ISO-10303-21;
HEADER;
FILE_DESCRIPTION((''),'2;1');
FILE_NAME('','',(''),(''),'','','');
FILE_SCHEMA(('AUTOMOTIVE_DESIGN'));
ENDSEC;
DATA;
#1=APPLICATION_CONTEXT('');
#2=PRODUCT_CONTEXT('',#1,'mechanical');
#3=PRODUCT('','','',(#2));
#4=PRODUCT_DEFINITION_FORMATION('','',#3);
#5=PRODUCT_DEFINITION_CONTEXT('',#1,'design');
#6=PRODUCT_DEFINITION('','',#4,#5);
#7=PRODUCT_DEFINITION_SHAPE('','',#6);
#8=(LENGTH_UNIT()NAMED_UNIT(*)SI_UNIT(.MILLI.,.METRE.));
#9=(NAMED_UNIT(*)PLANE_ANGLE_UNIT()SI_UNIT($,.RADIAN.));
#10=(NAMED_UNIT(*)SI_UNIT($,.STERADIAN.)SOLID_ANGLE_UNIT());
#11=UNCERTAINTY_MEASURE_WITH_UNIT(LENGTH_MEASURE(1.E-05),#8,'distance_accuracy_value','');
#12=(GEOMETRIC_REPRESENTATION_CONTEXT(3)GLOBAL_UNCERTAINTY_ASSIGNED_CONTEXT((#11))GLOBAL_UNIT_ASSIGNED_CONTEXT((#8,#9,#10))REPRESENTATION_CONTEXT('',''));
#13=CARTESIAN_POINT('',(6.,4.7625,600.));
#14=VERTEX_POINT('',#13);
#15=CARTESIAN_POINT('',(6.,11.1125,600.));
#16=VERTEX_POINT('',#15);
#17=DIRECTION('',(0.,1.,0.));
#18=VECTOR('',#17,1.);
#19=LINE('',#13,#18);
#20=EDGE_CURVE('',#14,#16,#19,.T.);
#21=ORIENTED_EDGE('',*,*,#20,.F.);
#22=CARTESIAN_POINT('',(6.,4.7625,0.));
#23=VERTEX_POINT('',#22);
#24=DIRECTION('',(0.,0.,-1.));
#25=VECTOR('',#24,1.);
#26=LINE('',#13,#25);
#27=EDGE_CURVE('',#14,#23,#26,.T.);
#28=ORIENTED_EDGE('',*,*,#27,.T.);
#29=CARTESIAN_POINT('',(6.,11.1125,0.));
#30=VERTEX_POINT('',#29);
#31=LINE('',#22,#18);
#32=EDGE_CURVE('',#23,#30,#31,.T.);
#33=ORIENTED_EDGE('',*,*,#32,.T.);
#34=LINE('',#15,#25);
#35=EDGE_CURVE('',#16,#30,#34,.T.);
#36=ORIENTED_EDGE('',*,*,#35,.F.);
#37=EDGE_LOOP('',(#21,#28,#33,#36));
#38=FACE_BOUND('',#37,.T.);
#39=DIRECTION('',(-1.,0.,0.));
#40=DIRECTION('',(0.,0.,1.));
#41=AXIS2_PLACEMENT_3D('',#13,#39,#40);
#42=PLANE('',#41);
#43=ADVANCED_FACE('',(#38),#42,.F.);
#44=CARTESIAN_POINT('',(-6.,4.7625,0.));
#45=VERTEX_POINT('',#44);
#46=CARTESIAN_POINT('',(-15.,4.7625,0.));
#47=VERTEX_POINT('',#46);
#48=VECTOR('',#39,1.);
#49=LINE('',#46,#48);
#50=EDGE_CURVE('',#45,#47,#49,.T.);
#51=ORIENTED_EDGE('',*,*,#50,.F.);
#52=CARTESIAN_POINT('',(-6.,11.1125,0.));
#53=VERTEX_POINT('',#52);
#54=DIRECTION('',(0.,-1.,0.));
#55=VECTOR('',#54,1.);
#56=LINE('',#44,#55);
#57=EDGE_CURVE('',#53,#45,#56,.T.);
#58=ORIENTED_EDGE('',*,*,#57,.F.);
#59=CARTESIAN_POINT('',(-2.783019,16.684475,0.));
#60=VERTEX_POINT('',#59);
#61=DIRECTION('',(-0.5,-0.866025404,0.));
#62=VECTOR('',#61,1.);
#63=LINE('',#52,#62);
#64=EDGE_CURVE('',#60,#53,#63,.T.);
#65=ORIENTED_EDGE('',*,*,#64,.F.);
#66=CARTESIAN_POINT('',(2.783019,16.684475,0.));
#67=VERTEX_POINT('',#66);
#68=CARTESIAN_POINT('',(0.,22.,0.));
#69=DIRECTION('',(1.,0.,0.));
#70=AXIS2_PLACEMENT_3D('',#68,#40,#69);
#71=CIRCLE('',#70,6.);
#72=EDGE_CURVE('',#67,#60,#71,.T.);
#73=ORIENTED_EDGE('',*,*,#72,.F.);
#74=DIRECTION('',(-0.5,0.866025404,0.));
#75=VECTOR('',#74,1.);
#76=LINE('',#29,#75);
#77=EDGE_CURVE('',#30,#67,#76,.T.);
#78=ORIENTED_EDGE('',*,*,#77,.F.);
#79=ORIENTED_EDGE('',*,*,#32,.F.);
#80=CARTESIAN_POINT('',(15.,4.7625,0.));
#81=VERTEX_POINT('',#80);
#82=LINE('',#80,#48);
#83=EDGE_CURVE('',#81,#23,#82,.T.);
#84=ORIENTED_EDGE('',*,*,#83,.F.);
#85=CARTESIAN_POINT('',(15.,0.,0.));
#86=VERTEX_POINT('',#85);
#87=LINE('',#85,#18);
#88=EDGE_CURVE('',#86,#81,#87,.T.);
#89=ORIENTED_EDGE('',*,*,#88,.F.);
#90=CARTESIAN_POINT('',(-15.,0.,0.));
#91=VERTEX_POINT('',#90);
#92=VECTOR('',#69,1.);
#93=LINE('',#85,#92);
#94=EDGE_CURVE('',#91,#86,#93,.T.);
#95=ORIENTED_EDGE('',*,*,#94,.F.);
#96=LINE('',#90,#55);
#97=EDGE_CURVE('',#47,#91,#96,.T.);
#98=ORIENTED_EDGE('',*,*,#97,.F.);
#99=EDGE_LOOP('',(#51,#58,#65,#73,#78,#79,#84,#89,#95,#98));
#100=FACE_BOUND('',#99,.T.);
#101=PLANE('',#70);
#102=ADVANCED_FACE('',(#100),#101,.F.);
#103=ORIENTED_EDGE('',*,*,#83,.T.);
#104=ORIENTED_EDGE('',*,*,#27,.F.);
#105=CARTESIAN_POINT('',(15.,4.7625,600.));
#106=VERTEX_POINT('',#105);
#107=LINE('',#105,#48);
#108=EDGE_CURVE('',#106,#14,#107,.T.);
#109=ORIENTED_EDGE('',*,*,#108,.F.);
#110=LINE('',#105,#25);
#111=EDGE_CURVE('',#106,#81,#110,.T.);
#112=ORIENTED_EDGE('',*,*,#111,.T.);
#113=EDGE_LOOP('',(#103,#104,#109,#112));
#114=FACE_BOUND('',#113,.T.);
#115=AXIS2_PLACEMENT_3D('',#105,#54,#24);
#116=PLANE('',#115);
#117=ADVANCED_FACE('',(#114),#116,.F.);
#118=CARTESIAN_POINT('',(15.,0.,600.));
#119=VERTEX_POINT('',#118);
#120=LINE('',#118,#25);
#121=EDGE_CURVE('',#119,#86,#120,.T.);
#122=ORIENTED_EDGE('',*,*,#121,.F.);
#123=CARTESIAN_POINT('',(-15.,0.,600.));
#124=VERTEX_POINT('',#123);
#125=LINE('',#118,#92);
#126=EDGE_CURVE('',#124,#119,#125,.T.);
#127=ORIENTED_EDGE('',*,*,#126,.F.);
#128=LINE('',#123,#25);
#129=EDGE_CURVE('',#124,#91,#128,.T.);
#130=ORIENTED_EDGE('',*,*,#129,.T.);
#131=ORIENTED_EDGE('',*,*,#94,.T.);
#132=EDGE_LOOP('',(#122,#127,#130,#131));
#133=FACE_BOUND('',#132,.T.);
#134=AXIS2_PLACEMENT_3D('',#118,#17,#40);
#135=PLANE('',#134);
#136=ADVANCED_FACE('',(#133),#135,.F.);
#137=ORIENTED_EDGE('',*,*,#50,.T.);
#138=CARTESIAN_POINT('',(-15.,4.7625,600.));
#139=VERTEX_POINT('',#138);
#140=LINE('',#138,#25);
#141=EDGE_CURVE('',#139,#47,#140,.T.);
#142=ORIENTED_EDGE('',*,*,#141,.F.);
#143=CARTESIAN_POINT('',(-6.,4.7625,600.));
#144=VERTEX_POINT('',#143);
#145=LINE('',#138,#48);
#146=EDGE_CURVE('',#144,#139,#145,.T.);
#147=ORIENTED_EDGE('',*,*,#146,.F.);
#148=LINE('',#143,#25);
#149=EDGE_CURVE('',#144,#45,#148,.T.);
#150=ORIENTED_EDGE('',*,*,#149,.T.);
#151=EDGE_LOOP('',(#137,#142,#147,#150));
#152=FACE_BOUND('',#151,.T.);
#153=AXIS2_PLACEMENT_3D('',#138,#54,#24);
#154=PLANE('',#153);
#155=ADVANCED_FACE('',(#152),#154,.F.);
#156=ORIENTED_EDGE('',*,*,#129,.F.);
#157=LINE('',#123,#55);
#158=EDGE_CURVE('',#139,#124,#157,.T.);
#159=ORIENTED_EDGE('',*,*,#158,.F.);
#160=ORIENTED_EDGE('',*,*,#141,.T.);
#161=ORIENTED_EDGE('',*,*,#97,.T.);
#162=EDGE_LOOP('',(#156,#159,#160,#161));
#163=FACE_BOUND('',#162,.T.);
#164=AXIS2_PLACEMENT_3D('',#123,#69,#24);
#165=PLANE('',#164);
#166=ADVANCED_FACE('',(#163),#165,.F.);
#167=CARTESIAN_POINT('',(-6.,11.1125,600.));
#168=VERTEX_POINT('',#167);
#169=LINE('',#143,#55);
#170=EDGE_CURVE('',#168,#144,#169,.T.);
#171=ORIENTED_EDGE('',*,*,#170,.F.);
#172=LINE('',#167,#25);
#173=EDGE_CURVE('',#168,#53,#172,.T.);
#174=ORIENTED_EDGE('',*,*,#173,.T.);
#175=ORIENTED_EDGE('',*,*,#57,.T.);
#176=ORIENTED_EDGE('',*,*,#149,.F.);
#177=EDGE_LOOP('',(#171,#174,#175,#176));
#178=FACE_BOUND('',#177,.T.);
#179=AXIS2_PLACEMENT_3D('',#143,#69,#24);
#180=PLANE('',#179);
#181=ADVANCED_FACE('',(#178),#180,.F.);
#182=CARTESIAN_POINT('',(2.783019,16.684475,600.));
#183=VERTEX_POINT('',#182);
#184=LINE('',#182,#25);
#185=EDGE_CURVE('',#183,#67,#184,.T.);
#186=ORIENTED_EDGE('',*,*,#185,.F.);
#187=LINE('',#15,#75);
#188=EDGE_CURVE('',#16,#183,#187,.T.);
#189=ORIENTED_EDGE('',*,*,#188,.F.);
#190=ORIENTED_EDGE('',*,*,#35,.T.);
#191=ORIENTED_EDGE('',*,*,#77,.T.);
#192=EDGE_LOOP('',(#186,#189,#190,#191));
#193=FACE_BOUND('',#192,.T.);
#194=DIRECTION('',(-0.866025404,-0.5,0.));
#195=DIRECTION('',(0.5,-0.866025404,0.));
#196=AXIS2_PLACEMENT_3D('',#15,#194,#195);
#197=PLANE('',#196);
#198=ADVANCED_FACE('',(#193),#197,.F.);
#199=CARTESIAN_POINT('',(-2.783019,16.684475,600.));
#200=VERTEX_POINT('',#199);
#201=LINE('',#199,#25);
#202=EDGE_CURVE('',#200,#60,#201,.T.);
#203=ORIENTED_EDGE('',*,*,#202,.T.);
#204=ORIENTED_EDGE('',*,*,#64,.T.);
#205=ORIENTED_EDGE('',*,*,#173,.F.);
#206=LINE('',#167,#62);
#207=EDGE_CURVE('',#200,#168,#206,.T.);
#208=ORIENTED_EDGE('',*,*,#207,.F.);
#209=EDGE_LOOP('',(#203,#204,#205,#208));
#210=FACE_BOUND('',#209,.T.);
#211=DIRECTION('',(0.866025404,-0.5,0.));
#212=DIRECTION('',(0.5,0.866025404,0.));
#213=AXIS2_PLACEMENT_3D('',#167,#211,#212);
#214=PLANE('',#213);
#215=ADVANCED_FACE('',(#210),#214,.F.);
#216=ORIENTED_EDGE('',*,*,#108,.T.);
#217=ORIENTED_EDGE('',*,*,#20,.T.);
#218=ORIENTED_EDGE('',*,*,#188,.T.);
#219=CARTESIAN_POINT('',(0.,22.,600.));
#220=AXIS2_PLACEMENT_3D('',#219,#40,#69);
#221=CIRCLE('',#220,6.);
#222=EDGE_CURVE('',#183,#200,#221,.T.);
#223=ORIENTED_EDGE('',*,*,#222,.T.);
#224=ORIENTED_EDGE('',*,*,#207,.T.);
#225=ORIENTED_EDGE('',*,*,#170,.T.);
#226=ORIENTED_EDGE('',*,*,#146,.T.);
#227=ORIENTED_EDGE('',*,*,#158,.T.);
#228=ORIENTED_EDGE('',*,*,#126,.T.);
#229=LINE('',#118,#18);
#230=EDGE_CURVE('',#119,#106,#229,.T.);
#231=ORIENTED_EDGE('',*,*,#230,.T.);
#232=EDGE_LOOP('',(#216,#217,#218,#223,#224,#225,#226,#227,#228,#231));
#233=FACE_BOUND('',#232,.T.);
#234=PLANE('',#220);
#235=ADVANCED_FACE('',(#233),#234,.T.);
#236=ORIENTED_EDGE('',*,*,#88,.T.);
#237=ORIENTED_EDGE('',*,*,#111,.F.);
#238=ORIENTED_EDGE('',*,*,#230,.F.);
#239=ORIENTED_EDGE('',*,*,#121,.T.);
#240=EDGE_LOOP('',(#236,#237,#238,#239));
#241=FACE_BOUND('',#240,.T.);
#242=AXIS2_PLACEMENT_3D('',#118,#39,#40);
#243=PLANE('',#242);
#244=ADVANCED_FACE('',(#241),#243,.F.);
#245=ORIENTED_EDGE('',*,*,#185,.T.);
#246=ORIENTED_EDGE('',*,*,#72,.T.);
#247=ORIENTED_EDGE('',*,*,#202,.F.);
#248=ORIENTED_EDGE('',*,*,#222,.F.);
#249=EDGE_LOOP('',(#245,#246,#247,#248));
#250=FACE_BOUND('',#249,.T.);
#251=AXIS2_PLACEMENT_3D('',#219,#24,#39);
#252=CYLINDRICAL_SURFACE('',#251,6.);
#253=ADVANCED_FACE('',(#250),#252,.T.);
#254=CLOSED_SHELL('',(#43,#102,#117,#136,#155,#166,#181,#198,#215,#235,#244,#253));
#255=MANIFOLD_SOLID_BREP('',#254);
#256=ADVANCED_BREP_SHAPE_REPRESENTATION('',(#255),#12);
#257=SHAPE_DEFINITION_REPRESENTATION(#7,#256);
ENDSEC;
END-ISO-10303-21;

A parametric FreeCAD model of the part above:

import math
import FreeCAD as App
import Part
import Sketcher
from FreeCAD import Vector
Q = App.Units.Quantity

doc = App.newDocument("Part")
body = doc.addObject("PartDesign::Body", "Body")

sketch1 = body.newObject("Sketcher::SketchObject", "Sketch")
sketch1.AttachmentSupport = (doc.getObject("XY_Plane"), [""])
sketch1.MapMode = "FlatFace"
sketch1.addGeometry(Part.LineSegment(Vector(-15, 0, 0), Vector(15, 0, 0)), False)
sketch1.addGeometry(Part.LineSegment(Vector(15, 0, 0), Vector(15, 4.7625, 0)), False)
sketch1.addGeometry(Part.LineSegment(Vector(15, 4.7625, 0), Vector(6, 4.7625, 0)), False)
sketch1.addGeometry(Part.LineSegment(Vector(6, 4.7625, 0), Vector(6, 11.1125, 0)), False)
sketch1.addGeometry(Part.LineSegment(Vector(6, 11.1125, 0), Vector(2.783019, 16.684475, 0)), False)
sketch1.addGeometry(Part.ArcOfCircle(Part.Circle(Vector(0, 22, 0), Vector(0, 0, 1), 6), math.radians(-62.365054), math.radians(242.365054)), False)
sketch1.addGeometry(Part.LineSegment(Vector(-2.783019, 16.684475, 0), Vector(-6, 11.1125, 0)), False)
sketch1.addGeometry(Part.LineSegment(Vector(-6, 11.1125, 0), Vector(-6, 4.7625, 0)), False)
sketch1.addGeometry(Part.LineSegment(Vector(-6, 4.7625, 0), Vector(-15, 4.7625, 0)), False)
sketch1.addGeometry(Part.LineSegment(Vector(-15, 4.7625, 0), Vector(-15, 0, 0)), False)
sketch1.addConstraint(Sketcher.Constraint("Coincident", 0, 2, 1, 1))
sketch1.addConstraint(Sketcher.Constraint("Coincident", 1, 2, 2, 1))
sketch1.addConstraint(Sketcher.Constraint("Coincident", 2, 2, 3, 1))
sketch1.addConstraint(Sketcher.Constraint("Coincident", 3, 2, 4, 1))
sketch1.addConstraint(Sketcher.Constraint("Coincident", 4, 2, 5, 1))
sketch1.addConstraint(Sketcher.Constraint("Coincident", 5, 2, 6, 1))
sketch1.addConstraint(Sketcher.Constraint("Coincident", 6, 2, 7, 1))
sketch1.addConstraint(Sketcher.Constraint("Coincident", 7, 2, 8, 1))
sketch1.addConstraint(Sketcher.Constraint("Coincident", 8, 2, 9, 1))
sketch1.addConstraint(Sketcher.Constraint("Coincident", 9, 2, 0, 1))
sketch1.addConstraint(Sketcher.Constraint("Horizontal", 0))
sketch1.addConstraint(Sketcher.Constraint("Vertical", 1))
sketch1.addConstraint(Sketcher.Constraint("Horizontal", 2))
sketch1.addConstraint(Sketcher.Constraint("Vertical", 3))
sketch1.addConstraint(Sketcher.Constraint("Vertical", 7))
sketch1.addConstraint(Sketcher.Constraint("Horizontal", 8))
sketch1.addConstraint(Sketcher.Constraint("Vertical", 9))
sketch1.addConstraint(Sketcher.Constraint("Symmetric", 0, 2, 9, 2, -1, 1))
sketch1.addConstraint(Sketcher.Constraint("Symmetric", 4, 2, 5, 2, -2))
sketch1.addConstraint(Sketcher.Constraint("Symmetric", 3, 2, 6, 2, -2))
sketch1.addConstraint(Sketcher.Constraint("Horizontal", 2, 2, 7, 2))
sketch1.addConstraint(Sketcher.Constraint("Radius", 5, 6.0))
sketch1.addConstraint(Sketcher.Constraint("DistanceX", 0, 1, 0, 2, 30.0))
sketch1.addConstraint(Sketcher.Constraint("DistanceX", 2, 2, 2, 1, 9.0))
sketch1.addConstraint(Sketcher.Constraint("Angle", 4, Q("120 deg")))
sketch1.addConstraint(Sketcher.Constraint("DistanceY", -1, 1, 5, 3, 22.0))
sketch1.addConstraint(Sketcher.Constraint("DistanceY", 3, 1, 3, 2, 6.35))
sketch1.addConstraint(Sketcher.Constraint("DistanceY", 1, 1, 1, 2, 4.7625))
pad1 = body.newObject("PartDesign::Pad", "Pad")
pad1.Profile = sketch1
pad1.Length = 600

doc.recompute()
